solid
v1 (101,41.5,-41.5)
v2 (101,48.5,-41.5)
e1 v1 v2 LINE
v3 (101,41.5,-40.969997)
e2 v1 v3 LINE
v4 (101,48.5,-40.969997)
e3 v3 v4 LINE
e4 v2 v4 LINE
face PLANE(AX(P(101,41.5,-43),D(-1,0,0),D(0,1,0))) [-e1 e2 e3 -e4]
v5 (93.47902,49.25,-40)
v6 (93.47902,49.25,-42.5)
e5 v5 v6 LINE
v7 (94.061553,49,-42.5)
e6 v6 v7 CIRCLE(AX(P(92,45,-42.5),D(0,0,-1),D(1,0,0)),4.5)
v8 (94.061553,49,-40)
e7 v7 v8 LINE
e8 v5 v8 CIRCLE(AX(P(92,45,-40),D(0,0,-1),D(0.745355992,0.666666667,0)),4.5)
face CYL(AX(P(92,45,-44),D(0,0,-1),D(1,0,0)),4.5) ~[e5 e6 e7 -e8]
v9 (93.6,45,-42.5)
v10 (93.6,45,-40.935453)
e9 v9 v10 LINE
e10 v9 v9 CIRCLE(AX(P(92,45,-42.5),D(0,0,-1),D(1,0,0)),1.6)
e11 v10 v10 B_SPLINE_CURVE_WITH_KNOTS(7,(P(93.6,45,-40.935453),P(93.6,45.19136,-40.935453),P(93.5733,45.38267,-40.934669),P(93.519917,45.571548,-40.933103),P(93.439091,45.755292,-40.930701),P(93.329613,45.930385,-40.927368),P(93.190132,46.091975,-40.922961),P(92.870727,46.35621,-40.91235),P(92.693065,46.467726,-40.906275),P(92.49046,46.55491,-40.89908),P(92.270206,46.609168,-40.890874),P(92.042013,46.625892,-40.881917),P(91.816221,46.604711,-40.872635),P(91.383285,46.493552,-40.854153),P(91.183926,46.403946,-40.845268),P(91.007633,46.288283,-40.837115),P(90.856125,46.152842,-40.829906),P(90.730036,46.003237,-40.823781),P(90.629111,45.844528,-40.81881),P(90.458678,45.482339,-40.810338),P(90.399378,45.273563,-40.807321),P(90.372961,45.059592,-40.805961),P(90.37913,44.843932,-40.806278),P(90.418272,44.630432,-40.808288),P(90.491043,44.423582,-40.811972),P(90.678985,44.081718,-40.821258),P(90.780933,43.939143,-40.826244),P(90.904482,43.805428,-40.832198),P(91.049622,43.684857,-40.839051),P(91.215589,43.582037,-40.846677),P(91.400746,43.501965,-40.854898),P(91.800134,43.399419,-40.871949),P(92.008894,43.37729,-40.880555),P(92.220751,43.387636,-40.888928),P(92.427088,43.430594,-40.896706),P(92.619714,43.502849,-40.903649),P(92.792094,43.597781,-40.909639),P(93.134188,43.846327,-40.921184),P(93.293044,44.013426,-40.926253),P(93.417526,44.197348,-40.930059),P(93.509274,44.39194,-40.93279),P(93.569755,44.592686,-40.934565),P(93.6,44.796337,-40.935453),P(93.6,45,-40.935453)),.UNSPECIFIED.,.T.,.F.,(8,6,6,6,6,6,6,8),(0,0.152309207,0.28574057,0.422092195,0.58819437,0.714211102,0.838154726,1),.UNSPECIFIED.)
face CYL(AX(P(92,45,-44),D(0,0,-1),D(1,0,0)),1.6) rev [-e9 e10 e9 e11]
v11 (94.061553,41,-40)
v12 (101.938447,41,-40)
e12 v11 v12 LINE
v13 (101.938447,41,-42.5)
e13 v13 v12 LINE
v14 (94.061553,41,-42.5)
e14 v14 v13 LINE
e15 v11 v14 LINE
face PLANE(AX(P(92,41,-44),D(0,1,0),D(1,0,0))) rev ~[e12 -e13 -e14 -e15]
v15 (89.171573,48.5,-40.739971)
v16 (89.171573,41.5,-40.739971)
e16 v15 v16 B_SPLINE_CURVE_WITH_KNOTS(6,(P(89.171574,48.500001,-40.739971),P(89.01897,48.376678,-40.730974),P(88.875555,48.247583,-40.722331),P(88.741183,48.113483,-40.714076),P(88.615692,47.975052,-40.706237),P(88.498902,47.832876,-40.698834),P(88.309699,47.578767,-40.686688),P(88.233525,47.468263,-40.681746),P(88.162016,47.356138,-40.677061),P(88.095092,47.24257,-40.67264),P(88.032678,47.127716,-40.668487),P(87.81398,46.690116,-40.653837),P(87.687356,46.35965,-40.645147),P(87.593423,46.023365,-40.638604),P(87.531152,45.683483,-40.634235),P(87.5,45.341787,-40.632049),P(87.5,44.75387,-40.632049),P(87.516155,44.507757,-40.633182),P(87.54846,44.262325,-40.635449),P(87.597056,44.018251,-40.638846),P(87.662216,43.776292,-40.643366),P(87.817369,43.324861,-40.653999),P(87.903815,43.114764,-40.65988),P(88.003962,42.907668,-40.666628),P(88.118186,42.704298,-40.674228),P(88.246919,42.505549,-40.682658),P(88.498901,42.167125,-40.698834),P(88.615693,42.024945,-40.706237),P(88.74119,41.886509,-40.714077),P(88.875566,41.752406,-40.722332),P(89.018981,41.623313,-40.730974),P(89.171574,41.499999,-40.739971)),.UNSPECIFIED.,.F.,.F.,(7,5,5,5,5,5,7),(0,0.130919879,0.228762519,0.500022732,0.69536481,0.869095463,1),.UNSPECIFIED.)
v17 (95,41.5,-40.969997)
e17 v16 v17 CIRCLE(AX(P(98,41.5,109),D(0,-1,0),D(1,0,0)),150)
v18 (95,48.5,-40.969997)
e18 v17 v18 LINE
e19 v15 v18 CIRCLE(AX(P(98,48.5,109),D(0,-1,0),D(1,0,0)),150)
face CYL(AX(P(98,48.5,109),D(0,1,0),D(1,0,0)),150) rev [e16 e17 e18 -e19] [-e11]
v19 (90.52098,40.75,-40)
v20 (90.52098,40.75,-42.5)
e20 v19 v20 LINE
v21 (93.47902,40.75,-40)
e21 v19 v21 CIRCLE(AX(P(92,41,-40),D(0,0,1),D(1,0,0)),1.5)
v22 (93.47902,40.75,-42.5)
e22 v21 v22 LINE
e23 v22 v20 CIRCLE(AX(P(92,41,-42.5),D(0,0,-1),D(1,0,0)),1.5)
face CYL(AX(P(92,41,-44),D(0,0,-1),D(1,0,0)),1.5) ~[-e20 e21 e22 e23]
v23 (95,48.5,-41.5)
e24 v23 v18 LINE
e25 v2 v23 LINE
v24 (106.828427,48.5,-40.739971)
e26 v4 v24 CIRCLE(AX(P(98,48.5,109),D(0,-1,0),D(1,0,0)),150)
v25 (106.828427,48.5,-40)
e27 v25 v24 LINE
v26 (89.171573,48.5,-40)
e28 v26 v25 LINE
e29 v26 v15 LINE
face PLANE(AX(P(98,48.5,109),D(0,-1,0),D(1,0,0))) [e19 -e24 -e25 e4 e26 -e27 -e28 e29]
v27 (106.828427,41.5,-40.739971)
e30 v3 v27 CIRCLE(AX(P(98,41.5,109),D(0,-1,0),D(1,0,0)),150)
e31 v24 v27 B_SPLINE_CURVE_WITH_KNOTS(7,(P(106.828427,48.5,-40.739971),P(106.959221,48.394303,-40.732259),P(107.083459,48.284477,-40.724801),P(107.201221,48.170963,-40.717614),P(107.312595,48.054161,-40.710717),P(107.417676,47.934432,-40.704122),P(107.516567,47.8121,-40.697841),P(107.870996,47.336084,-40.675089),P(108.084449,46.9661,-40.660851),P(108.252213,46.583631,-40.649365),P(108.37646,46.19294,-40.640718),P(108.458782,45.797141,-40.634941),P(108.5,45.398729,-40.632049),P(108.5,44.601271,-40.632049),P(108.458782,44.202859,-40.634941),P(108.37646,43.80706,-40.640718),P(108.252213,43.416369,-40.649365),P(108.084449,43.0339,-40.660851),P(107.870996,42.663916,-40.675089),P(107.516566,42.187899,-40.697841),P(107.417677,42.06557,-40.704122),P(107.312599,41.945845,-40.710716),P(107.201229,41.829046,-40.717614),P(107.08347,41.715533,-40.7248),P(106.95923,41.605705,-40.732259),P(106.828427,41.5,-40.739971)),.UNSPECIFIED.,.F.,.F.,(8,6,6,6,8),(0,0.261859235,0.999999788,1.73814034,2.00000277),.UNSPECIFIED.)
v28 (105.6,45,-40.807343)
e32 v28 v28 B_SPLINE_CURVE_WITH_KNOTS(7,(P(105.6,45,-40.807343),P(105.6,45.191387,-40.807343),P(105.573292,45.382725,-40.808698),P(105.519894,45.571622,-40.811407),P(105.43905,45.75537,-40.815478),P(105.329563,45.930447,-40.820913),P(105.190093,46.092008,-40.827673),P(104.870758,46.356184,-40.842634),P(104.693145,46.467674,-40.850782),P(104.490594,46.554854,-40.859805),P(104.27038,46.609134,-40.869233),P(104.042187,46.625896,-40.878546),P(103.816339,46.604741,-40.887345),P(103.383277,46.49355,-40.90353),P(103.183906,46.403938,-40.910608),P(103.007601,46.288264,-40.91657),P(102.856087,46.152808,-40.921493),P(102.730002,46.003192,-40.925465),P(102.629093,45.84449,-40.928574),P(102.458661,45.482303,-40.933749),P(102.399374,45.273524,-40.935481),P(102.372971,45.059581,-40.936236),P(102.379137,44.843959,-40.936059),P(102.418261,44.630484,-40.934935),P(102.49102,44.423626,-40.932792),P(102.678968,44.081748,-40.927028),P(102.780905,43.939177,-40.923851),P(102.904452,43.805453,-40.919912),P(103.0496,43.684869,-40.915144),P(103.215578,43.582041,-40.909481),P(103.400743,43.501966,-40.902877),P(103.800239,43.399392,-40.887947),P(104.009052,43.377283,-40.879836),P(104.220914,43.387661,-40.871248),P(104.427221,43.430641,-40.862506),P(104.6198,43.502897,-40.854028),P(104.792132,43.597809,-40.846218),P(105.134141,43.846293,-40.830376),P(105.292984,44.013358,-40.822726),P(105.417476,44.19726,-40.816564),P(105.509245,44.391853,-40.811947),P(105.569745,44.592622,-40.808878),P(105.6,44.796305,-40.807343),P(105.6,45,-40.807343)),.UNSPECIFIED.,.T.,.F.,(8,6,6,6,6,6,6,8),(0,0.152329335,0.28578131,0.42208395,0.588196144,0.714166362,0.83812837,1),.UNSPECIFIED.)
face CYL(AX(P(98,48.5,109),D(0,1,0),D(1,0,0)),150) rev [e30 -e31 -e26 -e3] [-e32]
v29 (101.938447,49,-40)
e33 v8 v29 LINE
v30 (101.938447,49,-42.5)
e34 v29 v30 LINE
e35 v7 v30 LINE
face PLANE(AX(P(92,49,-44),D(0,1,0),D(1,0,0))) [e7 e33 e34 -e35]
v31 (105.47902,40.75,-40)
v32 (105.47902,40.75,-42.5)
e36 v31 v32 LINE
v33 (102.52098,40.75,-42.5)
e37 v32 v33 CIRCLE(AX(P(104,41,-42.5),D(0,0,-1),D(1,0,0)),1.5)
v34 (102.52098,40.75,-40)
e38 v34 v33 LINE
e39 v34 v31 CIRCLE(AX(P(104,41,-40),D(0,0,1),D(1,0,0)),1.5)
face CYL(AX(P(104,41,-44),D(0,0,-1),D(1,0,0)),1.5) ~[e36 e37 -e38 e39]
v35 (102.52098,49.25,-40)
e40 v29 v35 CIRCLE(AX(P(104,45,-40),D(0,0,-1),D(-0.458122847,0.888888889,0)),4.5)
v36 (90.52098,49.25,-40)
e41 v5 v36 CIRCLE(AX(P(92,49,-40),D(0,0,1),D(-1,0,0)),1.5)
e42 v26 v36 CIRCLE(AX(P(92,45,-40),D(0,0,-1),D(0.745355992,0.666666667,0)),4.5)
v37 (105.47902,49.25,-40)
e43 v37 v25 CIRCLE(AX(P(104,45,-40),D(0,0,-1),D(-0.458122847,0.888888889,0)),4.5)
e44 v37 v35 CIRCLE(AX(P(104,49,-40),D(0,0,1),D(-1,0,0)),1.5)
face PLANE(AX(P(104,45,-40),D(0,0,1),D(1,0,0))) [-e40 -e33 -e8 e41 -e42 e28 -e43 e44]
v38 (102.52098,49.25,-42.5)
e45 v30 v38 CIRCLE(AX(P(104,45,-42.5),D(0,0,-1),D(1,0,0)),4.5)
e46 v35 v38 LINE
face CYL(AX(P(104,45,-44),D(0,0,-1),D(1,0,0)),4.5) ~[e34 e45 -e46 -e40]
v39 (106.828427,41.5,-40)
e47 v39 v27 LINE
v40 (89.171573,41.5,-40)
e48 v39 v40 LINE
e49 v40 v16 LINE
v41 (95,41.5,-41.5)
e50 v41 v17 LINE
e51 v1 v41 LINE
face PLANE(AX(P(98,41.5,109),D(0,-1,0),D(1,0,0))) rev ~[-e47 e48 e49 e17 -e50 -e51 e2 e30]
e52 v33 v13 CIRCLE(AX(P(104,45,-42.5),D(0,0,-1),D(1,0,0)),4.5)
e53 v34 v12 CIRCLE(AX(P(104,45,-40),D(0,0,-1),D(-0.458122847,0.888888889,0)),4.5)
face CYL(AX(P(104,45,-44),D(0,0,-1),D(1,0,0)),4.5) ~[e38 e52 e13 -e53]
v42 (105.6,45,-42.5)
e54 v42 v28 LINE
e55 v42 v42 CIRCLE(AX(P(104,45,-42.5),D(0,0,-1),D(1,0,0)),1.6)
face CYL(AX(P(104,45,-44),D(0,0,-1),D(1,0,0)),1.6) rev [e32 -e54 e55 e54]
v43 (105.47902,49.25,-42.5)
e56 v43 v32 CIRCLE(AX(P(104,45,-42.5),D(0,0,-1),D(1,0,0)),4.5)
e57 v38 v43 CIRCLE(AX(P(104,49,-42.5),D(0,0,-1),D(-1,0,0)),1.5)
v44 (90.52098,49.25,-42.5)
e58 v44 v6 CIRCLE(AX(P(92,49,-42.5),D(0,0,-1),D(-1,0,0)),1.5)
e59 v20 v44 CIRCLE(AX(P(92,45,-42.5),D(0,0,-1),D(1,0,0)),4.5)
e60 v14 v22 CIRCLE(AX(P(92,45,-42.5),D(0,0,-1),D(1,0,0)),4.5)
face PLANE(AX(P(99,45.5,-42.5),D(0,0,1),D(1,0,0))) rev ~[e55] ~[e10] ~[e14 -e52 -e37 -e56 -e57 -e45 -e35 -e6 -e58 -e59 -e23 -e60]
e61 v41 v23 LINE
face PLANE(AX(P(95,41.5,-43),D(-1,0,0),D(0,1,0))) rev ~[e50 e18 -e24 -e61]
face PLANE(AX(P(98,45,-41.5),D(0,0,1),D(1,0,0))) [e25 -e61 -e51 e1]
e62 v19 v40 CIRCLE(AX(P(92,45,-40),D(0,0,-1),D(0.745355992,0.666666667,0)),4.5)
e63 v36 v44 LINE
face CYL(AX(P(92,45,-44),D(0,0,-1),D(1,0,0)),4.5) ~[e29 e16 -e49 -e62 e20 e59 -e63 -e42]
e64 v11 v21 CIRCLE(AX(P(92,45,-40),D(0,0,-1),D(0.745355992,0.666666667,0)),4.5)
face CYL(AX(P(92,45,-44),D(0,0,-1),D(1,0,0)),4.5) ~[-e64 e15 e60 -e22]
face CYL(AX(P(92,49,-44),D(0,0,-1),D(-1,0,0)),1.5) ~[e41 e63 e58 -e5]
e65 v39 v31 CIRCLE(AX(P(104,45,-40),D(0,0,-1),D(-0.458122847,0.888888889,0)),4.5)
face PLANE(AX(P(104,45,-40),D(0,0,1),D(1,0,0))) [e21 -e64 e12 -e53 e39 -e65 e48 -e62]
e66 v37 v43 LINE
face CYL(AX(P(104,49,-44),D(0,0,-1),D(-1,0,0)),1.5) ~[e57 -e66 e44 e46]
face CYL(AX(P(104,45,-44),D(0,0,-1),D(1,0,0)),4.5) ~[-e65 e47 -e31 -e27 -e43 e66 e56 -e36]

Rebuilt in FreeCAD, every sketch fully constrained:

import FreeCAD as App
import Part
import Sketcher

doc = App.newDocument("Part")
body = doc.addObject("PartDesign::Body", "Body")

# Sketch on XY plane
sketch1 = body.newObject("Sketcher::SketchObject", "Sketch")
sketch1.AttachmentSupport = (doc.getObject("XY_Plane"), [""])
sketch1.MapMode = "FlatFace"
sketch1.addGeometry(Part.LineSegment(App.Vector(2, 4, 0), App.Vector(2, -4, 0)), False)
sketch1.addGeometry(Part.LineSegment(App.Vector(2, -4, 0), App.Vector(10, -4, 0)), False)
sketch1.addGeometry(Part.LineSegment(App.Vector(10, -4, 0), App.Vector(10, 4, 0)), False)
sketch1.addGeometry(Part.LineSegment(App.Vector(10, 4, 0), App.Vector(2, 4, 0)), False)
sketch1.addConstraint(Sketcher.Constraint("Coincident", 0, 2, 1, 1))
sketch1.addConstraint(Sketcher.Constraint("Coincident", 1, 2, 2, 1))
sketch1.addConstraint(Sketcher.Constraint("Coincident", 2, 2, 3, 1))
sketch1.addConstraint(Sketcher.Constraint("Coincident", 3, 2, 0, 1))
sketch1.addConstraint(Sketcher.Constraint("Vertical", 0))
sketch1.addConstraint(Sketcher.Constraint("Horizontal", 1))
sketch1.addConstraint(Sketcher.Constraint("Vertical", 2))
sketch1.addConstraint(Sketcher.Constraint("Horizontal", 3))
sketch1.addConstraint(Sketcher.Constraint("Equal", 3, 0))
sketch1.addConstraint(Sketcher.Constraint("DistanceX", 1, 1, 1, 2, 8.0))
sketch1.addConstraint(Sketcher.Constraint("DistanceX", -1, 1, 0, 2, 2.0))
sketch1.addConstraint(Sketcher.Constraint("DistanceY", 0, 2, -1, 1, 4.0))
pad1 = body.newObject("PartDesign::Pad", "Pad")
pad1.Profile = sketch1
pad1.Length = 1
body2 = doc.addObject("PartDesign::Body", "Body001")

# Sketch on XY plane
sketch2 = body2.newObject("Sketcher::SketchObject", "Sketch001")
sketch2.AttachmentSupport = (doc.getObject("XY_Plane001"), [""])
sketch2.MapMode = "FlatFace"
sketch2.addGeometry(Part.LineSegment(App.Vector(-6, 7, 0), App.Vector(-6, -6, 0)), False)
sketch2.addGeometry(Part.LineSegment(App.Vector(-6, -6, 0), App.Vector(20, -6, 0)), False)
sketch2.addGeometry(Part.LineSegment(App.Vector(20, -6, 0), App.Vector(20, 7, 0)), False)
sketch2.addGeometry(Part.LineSegment(App.Vector(20, 7, 0), App.Vector(-6, 7, 0)), False)
sketch2.addConstraint(Sketcher.Constraint("Coincident", 0, 2, 1, 1))
sketch2.addConstraint(Sketcher.Constraint("Coincident", 1, 2, 2, 1))
sketch2.addConstraint(Sketcher.Constraint("Coincident", 2, 2, 3, 1))
sketch2.addConstraint(Sketcher.Constraint("Coincident", 3, 2, 0, 1))
sketch2.addConstraint(Sketcher.Constraint("Vertical", 0))
sketch2.addConstraint(Sketcher.Constraint("Horizontal", 1))
sketch2.addConstraint(Sketcher.Constraint("Vertical", 2))
sketch2.addConstraint(Sketcher.Constraint("Horizontal", 3))
sketch2.addConstraint(Sketcher.Constraint("DistanceX", 1, 1, 1, 2, 26.0))
sketch2.addConstraint(Sketcher.Constraint("DistanceY", 0, 2, 0, 1, 13.0))
sketch2.addConstraint(Sketcher.Constraint("DistanceX", 0, 2, -1, 1, 6.0))
sketch2.addConstraint(Sketcher.Constraint("DistanceY", 0, 2, -1, 1, 6.0))
pad2 = body2.newObject("PartDesign::Pad", "Pad001")
pad2.Profile = sketch2
pad2.Length = 1.5
body3 = doc.addObject("PartDesign::Body", "Body002")

# Sketch on XY plane
sketch3 = body3.newObject("Sketcher::SketchObject", "Sketch002")
sketch3.AttachmentSupport = (doc.getObject("XY_Plane002"), [""])
sketch3.MapMode = "FlatFace"
sketch3.AttachmentOffset = App.Placement(App.Vector(0, 0, 1), App.Rotation())
sketch3.addGeometry(Part.LineSegment(App.Vector(3, 3.5, 0), App.Vector(3, -3.5, 0)), False)
sketch3.addGeometry(Part.LineSegment(App.Vector(3, -3.5, 0), App.Vector(9, -3.5, 0)), False)
sketch3.addGeometry(Part.LineSegment(App.Vector(9, -3.5, 0), App.Vector(9, 3.5, 0)), False)
sketch3.addGeometry(Part.LineSegment(App.Vector(9, 3.5, 0), App.Vector(3, 3.5, 0)), False)
sketch3.addConstraint(Sketcher.Constraint("Coincident", 0, 2, 1, 1))
sketch3.addConstraint(Sketcher.Constraint("Coincident", 1, 2, 2, 1))
sketch3.addConstraint(Sketcher.Constraint("Coincident", 2, 2, 3, 1))
sketch3.addConstraint(Sketcher.Constraint("Coincident", 3, 2, 0, 1))
sketch3.addConstraint(Sketcher.Constraint("Vertical", 0))
sketch3.addConstraint(Sketcher.Constraint("Horizontal", 1))
sketch3.addConstraint(Sketcher.Constraint("Vertical", 2))
sketch3.addConstraint(Sketcher.Constraint("Horizontal", 3))
sketch3.addConstraint(Sketcher.Constraint("DistanceX", 1, 1, 1, 2, 6.0))
sketch3.addConstraint(Sketcher.Constraint("DistanceY", 0, 2, 0, 1, 7.0))
sketch3.addConstraint(Sketcher.Constraint("DistanceX", -1, 1, 0, 2, 3.0))
sketch3.addConstraint(Sketcher.Constraint("DistanceY", 0, 2, -1, 1, 3.5))
pad3 = body3.newObject("PartDesign::Pad", "Pad002")
pad3.Profile = sketch3
pad3.Length = 3
body4 = doc.addObject("PartDesign::Body", "Body003")

# Sketch on XY plane
sketch4 = body4.newObject("Sketcher::SketchObject", "Sketch003")
sketch4.AttachmentSupport = (doc.getObject("XY_Plane003"), [""])
sketch4.MapMode = "FlatFace"
sketch4.addGeometry(Part.Circle(App.Vector(0, 0, 0), App.Vector(0, 0, 1), 150), False)
sketch4.addConstraint(Sketcher.Constraint("Coincident", 0, 3, -1, 1))
sketch4.addConstraint(Sketcher.Constraint("Diameter", 0, 300.0))
pad4 = body4.newObject("PartDesign::Pad", "Pad003")
pad4.Profile = sketch4
pad4.Length = 7
body5 = doc.addObject("PartDesign::Body", "Body004")
doc.recompute()

body4.Placement = App.Placement(App.Vector(0, 0, 0), App.Rotation(App.Vector(1, 0, 0), 90))
boolean = body5.newObject("PartDesign::Boolean", "Boolean")
boolean.Type = "Fuse"
boolean.addObjects([body4])
body6 = doc.addObject("PartDesign::Body", "Body005")
doc.recompute()

body5.Placement = App.Placement(App.Vector(6, 3.5, 153), App.Rotation(App.Vector(0, 0, 1), 0))
boolean2 = body6.newObject("PartDesign::Boolean", "Boolean001")
boolean2.Type = "Fuse"
boolean2.addObjects([body5])
body7 = doc.addObject("PartDesign::Body", "Body006")

# Sketch on XY plane
sketch5 = body7.newObject("Sketcher::SketchObject", "Sketch004")
sketch5.AttachmentSupport = (doc.getObject("XY_Plane006"), [""])
sketch5.MapMode = "FlatFace"
sketch5.addGeometry(Part.Circle(App.Vector(0, 0, 0), App.Vector(0, 0, 1), 1.6), False)
sketch5.addConstraint(Sketcher.Constraint("Coincident", 0, 3, -1, 1))
sketch5.addConstraint(Sketcher.Constraint("Diameter", 0, 3.2))
pad5 = body7.newObject("PartDesign::Pad", "Pad004")
pad5.Profile = sketch5
pad5.Length = 10
body8 = doc.addObject("PartDesign::Body", "Body007")
body8.AllowCompound = True

# Sketch on XY plane
sketch6 = body8.newObject("Sketcher::SketchObject", "Sketch005")
sketch6.AttachmentSupport = (doc.getObject("XY_Plane007"), [""])
sketch6.MapMode = "FlatFace"
sketch6.addGeometry(Part.Circle(App.Vector(12, 0, 0), App.Vector(0, 0, 1), 1.6), False)
sketch6.addConstraint(Sketcher.Constraint("PointOnObject", 0, 3, -1))
sketch6.addConstraint(Sketcher.Constraint("Diameter", 0, 3.2))
sketch6.addConstraint(Sketcher.Constraint("DistanceX", -1, 1, 0, 3, 12.0))
pad6 = body8.newObject("PartDesign::Pad", "Pad005")
pad6.Profile = sketch6
pad6.Length = 10
doc.recompute()

boolean3 = body8.newObject("PartDesign::Boolean", "Boolean002")
boolean3.Type = "Fuse"
boolean3.addObjects([body7])
body9 = doc.addObject("PartDesign::Body", "Body008")

# Sketch on XY plane
sketch7 = body9.newObject("Sketcher::SketchObject", "Sketch006")
sketch7.AttachmentSupport = (doc.getObject("XY_Plane008"), [""])
sketch7.MapMode = "FlatFace"
sketch7.addGeometry(Part.LineSegment(App.Vector(-5, 10, 0), App.Vector(-5, 0, 0)), False)
sketch7.addGeometry(Part.LineSegment(App.Vector(-5, 0, 0), App.Vector(5, 0, 0)), False)
sketch7.addGeometry(Part.LineSegment(App.Vector(5, 0, 0), App.Vector(5, 10, 0)), False)
sketch7.addGeometry(Part.LineSegment(App.Vector(5, 10, 0), App.Vector(-5, 10, 0)), False)
sketch7.addConstraint(Sketcher.Constraint("Coincident", 0, 2, 1, 1))
sketch7.addConstraint(Sketcher.Constraint("Coincident", 1, 2, 2, 1))
sketch7.addConstraint(Sketcher.Constraint("Coincident", 2, 2, 3, 1))
sketch7.addConstraint(Sketcher.Constraint("Coincident", 3, 2, 0, 1))
sketch7.addConstraint(Sketcher.Constraint("Vertical", 0))
sketch7.addConstraint(Sketcher.Constraint("Horizontal", 1))
sketch7.addConstraint(Sketcher.Constraint("Vertical", 2))
sketch7.addConstraint(Sketcher.Constraint("Horizontal", 3))
sketch7.addConstraint(Sketcher.Constraint("Symmetric", 0, 2, 1, 2, -1, 1))
sketch7.addConstraint(Sketcher.Constraint("Equal", 3, 0))
sketch7.addConstraint(Sketcher.Constraint("DistanceX", 1, 1, 1, 2, 10.0))
pad7 = body9.newObject("PartDesign::Pad", "Pad006")
pad7.Profile = sketch7
pad7.Length = 10
body10 = doc.addObject("PartDesign::Body", "Body009")

# Sketch on XY plane
sketch8 = body10.newObject("Sketcher::SketchObject", "Sketch007")
sketch8.AttachmentSupport = (doc.getObject("XY_Plane009"), [""])
sketch8.MapMode = "FlatFace"
sketch8.addGeometry(Part.Circle(App.Vector(0, 0, 0), App.Vector(0, 0, 1), 1.5), False)
sketch8.addConstraint(Sketcher.Constraint("Coincident", 0, 3, -1, 1))
sketch8.addConstraint(Sketcher.Constraint("Diameter", 0, 3.0))
pad8 = body10.newObject("PartDesign::Pad", "Pad007")
pad8.Profile = sketch8
pad8.Length = 4
doc.recompute()

boolean4 = body10.newObject("PartDesign::Boolean", "Boolean003")
boolean4.Type = "Cut"
boolean4.addObjects([body9])
body11 = doc.addObject("PartDesign::Body", "Body010")
doc.recompute()

body10.Placement = App.Placement(App.Vector(12, 4, 0), App.Rotation(App.Vector(0, 0, 1), 180))
boolean5 = body11.newObject("PartDesign::Boolean", "Boolean004")
boolean5.Type = "Fuse"
boolean5.addObjects([body10])
body12 = doc.addObject("PartDesign::Body", "Body011")

# Sketch on XY plane
sketch9 = body12.newObject("Sketcher::SketchObject", "Sketch008")
sketch9.AttachmentSupport = (doc.getObject("XY_Plane011"), [""])
sketch9.MapMode = "FlatFace"
sketch9.addGeometry(Part.LineSegment(App.Vector(-5, 10, 0), App.Vector(-5, 0, 0)), False)
sketch9.addGeometry(Part.LineSegment(App.Vector(-5, 0, 0), App.Vector(5, 0, 0)), False)
sketch9.addGeometry(Part.LineSegment(App.Vector(5, 0, 0), App.Vector(5, 10, 0)), False)
sketch9.addGeometry(Part.LineSegment(App.Vector(5, 10, 0), App.Vector(-5, 10, 0)), False)
sketch9.addConstraint(Sketcher.Constraint("Coincident", 0, 2, 1, 1))
sketch9.addConstraint(Sketcher.Constraint("Coincident", 1, 2, 2, 1))
sketch9.addConstraint(Sketcher.Constraint("Coincident", 2, 2, 3, 1))
sketch9.addConstraint(Sketcher.Constraint("Coincident", 3, 2, 0, 1))
sketch9.addConstraint(Sketcher.Constraint("Vertical", 0))
sketch9.addConstraint(Sketcher.Constraint("Horizontal", 1))
sketch9.addConstraint(Sketcher.Constraint("Vertical", 2))
sketch9.addConstraint(Sketcher.Constraint("Horizontal", 3))
sketch9.addConstraint(Sketcher.Constraint("Symmetric", 0, 2, 1, 2, -1, 1))
sketch9.addConstraint(Sketcher.Constraint("Equal", 3, 0))
sketch9.addConstraint(Sketcher.Constraint("DistanceX", 1, 1, 1, 2, 10.0))
pad9 = body12.newObject("PartDesign::Pad", "Pad008")
pad9.Profile = sketch9
pad9.Length = 10
body13 = doc.addObject("PartDesign::Body", "Body012")

# Sketch on XY plane
sketch10 = body13.newObject("Sketcher::SketchObject", "Sketch009")
sketch10.AttachmentSupport = (doc.getObject("XY_Plane012"), [""])
sketch10.MapMode = "FlatFace"
sketch10.addGeometry(Part.Circle(App.Vector(0, 0, 0), App.Vector(0, 0, 1), 1.5), False)
sketch10.addConstraint(Sketcher.Constraint("Coincident", 0, 3, -1, 1))
sketch10.addConstraint(Sketcher.Constraint("Diameter", 0, 3.0))
pad10 = body13.newObject("PartDesign::Pad", "Pad009")
pad10.Profile = sketch10
pad10.Length = 4
doc.recompute()

boolean6 = body13.newObject("PartDesign::Boolean", "Boolean005")
boolean6.Type = "Cut"
boolean6.addObjects([body12])
body14 = doc.addObject("PartDesign::Body", "Body013")
doc.recompute()

body13.Placement = App.Placement(App.Vector(0, 4, 0), App.Rotation(App.Vector(0, 0, 1), 180))
boolean7 = body14.newObject("PartDesign::Boolean", "Boolean006")
boolean7.Type = "Fuse"
boolean7.addObjects([body13])
body15 = doc.addObject("PartDesign::Body", "Body014")

# Sketch on XY plane
sketch11 = body15.newObject("Sketcher::SketchObject", "Sketch010")
sketch11.AttachmentSupport = (doc.getObject("XY_Plane014"), [""])
sketch11.MapMode = "FlatFace"
sketch11.addGeometry(Part.LineSegment(App.Vector(-5, 10, 0), App.Vector(-5, 0, 0)), False)
sketch11.addGeometry(Part.LineSegment(App.Vector(-5, 0, 0), App.Vector(5, 0, 0)), False)
sketch11.addGeometry(Part.LineSegment(App.Vector(5, 0, 0), App.Vector(5, 10, 0)), False)
sketch11.addGeometry(Part.LineSegment(App.Vector(5, 10, 0), App.Vector(-5, 10, 0)), False)
sketch11.addConstraint(Sketcher.Constraint("Coincident", 0, 2, 1, 1))
sketch11.addConstraint(Sketcher.Constraint("Coincident", 1, 2, 2, 1))
sketch11.addConstraint(Sketcher.Constraint("Coincident", 2, 2, 3, 1))
sketch11.addConstraint(Sketcher.Constraint("Coincident", 3, 2, 0, 1))
sketch11.addConstraint(Sketcher.Constraint("Vertical", 0))
sketch11.addConstraint(Sketcher.Constraint("Horizontal", 1))
sketch11.addConstraint(Sketcher.Constraint("Vertical", 2))
sketch11.addConstraint(Sketcher.Constraint("Horizontal", 3))
sketch11.addConstraint(Sketcher.Constraint("Symmetric", 0, 2, 1, 2, -1, 1))
sketch11.addConstraint(Sketcher.Constraint("Equal", 3, 0))
sketch11.addConstraint(Sketcher.Constraint("DistanceX", 1, 1, 1, 2, 10.0))
pad11 = body15.newObject("PartDesign::Pad", "Pad010")
pad11.Profile = sketch11
pad11.Length = 10
body16 = doc.addObject("PartDesign::Body", "Body015")

# Sketch on XY plane
sketch12 = body16.newObject("Sketcher::SketchObject", "Sketch011")
sketch12.AttachmentSupport = (doc.getObject("XY_Plane015"), [""])
sketch12.MapMode = "FlatFace"
sketch12.addGeometry(Part.Circle(App.Vector(0, 0, 0), App.Vector(0, 0, 1), 1.5), False)
sketch12.addConstraint(Sketcher.Constraint("Coincident", 0, 3, -1, 1))
sketch12.addConstraint(Sketcher.Constraint("Diameter", 0, 3.0))
pad12 = body16.newObject("PartDesign::Pad", "Pad011")
pad12.Profile = sketch12
pad12.Length = 4
doc.recompute()

boolean8 = body16.newObject("PartDesign::Boolean", "Boolean007")
boolean8.Type = "Cut"
boolean8.addObjects([body15])
body17 = doc.addObject("PartDesign::Body", "Body016")
doc.recompute()

body16.Placement = App.Placement(App.Vector(12, -4, 0), App.Rotation(App.Vector(0, 0, 1), 0))
boolean9 = body17.newObject("PartDesign::Boolean", "Boolean008")
boolean9.Type = "Fuse"
boolean9.addObjects([body16])
body18 = doc.addObject("PartDesign::Body", "Body017")

# Sketch on XY plane
sketch13 = body18.newObject("Sketcher::SketchObject", "Sketch012")
sketch13.AttachmentSupport = (doc.getObject("XY_Plane017"), [""])
sketch13.MapMode = "FlatFace"
sketch13.addGeometry(Part.LineSegment(App.Vector(-5, 10, 0), App.Vector(-5, 0, 0)), False)
sketch13.addGeometry(Part.LineSegment(App.Vector(-5, 0, 0), App.Vector(5, 0, 0)), False)
sketch13.addGeometry(Part.LineSegment(App.Vector(5, 0, 0), App.Vector(5, 10, 0)), False)
sketch13.addGeometry(Part.LineSegment(App.Vector(5, 10, 0), App.Vector(-5, 10, 0)), False)
sketch13.addConstraint(Sketcher.Constraint("Coincident", 0, 2, 1, 1))
sketch13.addConstraint(Sketcher.Constraint("Coincident", 1, 2, 2, 1))
sketch13.addConstraint(Sketcher.Constraint("Coincident", 2, 2, 3, 1))
sketch13.addConstraint(Sketcher.Constraint("Coincident", 3, 2, 0, 1))
sketch13.addConstraint(Sketcher.Constraint("Vertical", 0))
sketch13.addConstraint(Sketcher.Constraint("Horizontal", 1))
sketch13.addConstraint(Sketcher.Constraint("Vertical", 2))
sketch13.addConstraint(Sketcher.Constraint("Horizontal", 3))
sketch13.addConstraint(Sketcher.Constraint("Symmetric", 0, 2, 1, 2, -1, 1))
sketch13.addConstraint(Sketcher.Constraint("Equal", 3, 0))
sketch13.addConstraint(Sketcher.Constraint("DistanceX", 1, 1, 1, 2, 10.0))
pad13 = body18.newObject("PartDesign::Pad", "Pad012")
pad13.Profile = sketch13
pad13.Length = 10
body19 = doc.addObject("PartDesign::Body", "Body018")

# Sketch on XY plane
sketch14 = body19.newObject("Sketcher::SketchObject", "Sketch013")
sketch14.AttachmentSupport = (doc.getObject("XY_Plane018"), [""])
sketch14.MapMode = "FlatFace"
sketch14.addGeometry(Part.Circle(App.Vector(0, 0, 0), App.Vector(0, 0, 1), 1.5), False)
sketch14.addConstraint(Sketcher.Constraint("Coincident", 0, 3, -1, 1))
sketch14.addConstraint(Sketcher.Constraint("Diameter", 0, 3.0))
pad14 = body19.newObject("PartDesign::Pad", "Pad013")
pad14.Profile = sketch14
pad14.Length = 4
doc.recompute()

boolean10 = body19.newObject("PartDesign::Boolean", "Boolean009")
boolean10.Type = "Cut"
boolean10.addObjects([body18])
body20 = doc.addObject("PartDesign::Body", "Body019")
doc.recompute()

body19.Placement = App.Placement(App.Vector(0, -4, 0), App.Rotation(App.Vector(0, 0, 1), 0))
boolean11 = body20.newObject("PartDesign::Boolean", "Boolean010")
boolean11.Type = "Fuse"
boolean11.addObjects([body19])
body21 = doc.addObject("PartDesign::Body", "Body020")

# Sketch on XY plane
sketch15 = body21.newObject("Sketcher::SketchObject", "Sketch014")
sketch15.AttachmentSupport = (doc.getObject("XY_Plane020"), [""])
sketch15.MapMode = "FlatFace"
sketch15.AttachmentOffset = App.Placement(App.Vector(0, 0, 3), App.Rotation())
sketch15.addGeometry(Part.LineSegment(App.Vector(0, 4, 0), App.Vector(0, 3.5, 0)), False)
sketch15.addGeometry(Part.LineSegment(App.Vector(0, 3.5, 0), App.Vector(12, 3.5, 0)), False)
sketch15.addGeometry(Part.LineSegment(App.Vector(12, 3.5, 0), App.Vector(12, 4, 0)), False)
sketch15.addGeometry(Part.LineSegment(App.Vector(12, 4, 0), App.Vector(0, 4, 0)), False)
sketch15.addConstraint(Sketcher.Constraint("Coincident", 0, 2, 1, 1))
sketch15.addConstraint(Sketcher.Constraint("Coincident", 1, 2, 2, 1))
sketch15.addConstraint(Sketcher.Constraint("Coincident", 2, 2, 3, 1))
sketch15.addConstraint(Sketcher.Constraint("Coincident", 3, 2, 0, 1))
sketch15.addConstraint(Sketcher.Constraint("Vertical", 0))
sketch15.addConstraint(Sketcher.Constraint("Horizontal", 1))
sketch15.addConstraint(Sketcher.Constraint("Vertical", 2))
sketch15.addConstraint(Sketcher.Constraint("Horizontal", 3))
sketch15.addConstraint(Sketcher.Constraint("PointOnObject", 0, 2, -2))
sketch15.addConstraint(Sketcher.Constraint("DistanceX", 1, 1, 1, 2, 12.0))
sketch15.addConstraint(Sketcher.Constraint("DistanceY", 0, 2, 0, 1, 0.5))
sketch15.addConstraint(Sketcher.Constraint("DistanceY", -1, 1, 2, 2, 4.0))
pad15 = body21.newObject("PartDesign::Pad", "Pad014")
pad15.Profile = sketch15
pad15.Length = 1
body22 = doc.addObject("PartDesign::Body", "Body021")

# Sketch on XY plane
sketch16 = body22.newObject("Sketcher::SketchObject", "Sketch015")
sketch16.AttachmentSupport = (doc.getObject("XY_Plane021"), [""])
sketch16.MapMode = "FlatFace"
sketch16.AttachmentOffset = App.Placement(App.Vector(0, 0, 3), App.Rotation())
sketch16.addGeometry(Part.LineSegment(App.Vector(0, -3.5, 0), App.Vector(0, -4, 0)), False)
sketch16.addGeometry(Part.LineSegment(App.Vector(0, -4, 0), App.Vector(12, -4, 0)), False)
sketch16.addGeometry(Part.LineSegment(App.Vector(12, -4, 0), App.Vector(12, -3.5, 0)), False)
sketch16.addGeometry(Part.LineSegment(App.Vector(12, -3.5, 0), App.Vector(0, -3.5, 0)), False)
sketch16.addConstraint(Sketcher.Constraint("Coincident", 0, 2, 1, 1))
sketch16.addConstraint(Sketcher.Constraint("Coincident", 1, 2, 2, 1))
sketch16.addConstraint(Sketcher.Constraint("Coincident", 2, 2, 3, 1))
sketch16.addConstraint(Sketcher.Constraint("Coincident", 3, 2, 0, 1))
sketch16.addConstraint(Sketcher.Constraint("Vertical", 0))
sketch16.addConstraint(Sketcher.Constraint("Horizontal", 1))
sketch16.addConstraint(Sketcher.Constraint("Vertical", 2))
sketch16.addConstraint(Sketcher.Constraint("Horizontal", 3))
sketch16.addConstraint(Sketcher.Constraint("PointOnObject", 0, 2, -2))
sketch16.addConstraint(Sketcher.Constraint("DistanceX", 1, 1, 1, 2, 12.0))
sketch16.addConstraint(Sketcher.Constraint("DistanceY", 0, 2, 0, 1, 0.5))
sketch16.addConstraint(Sketcher.Constraint("DistanceY", 0, 2, -1, 1, 4.0))
pad16 = body22.newObject("PartDesign::Pad", "Pad015")
pad16.Profile = sketch16
pad16.Length = 1
body23 = doc.addObject("PartDesign::Body", "Body022")

# Sketch on XY plane
sketch17 = body23.newObject("Sketcher::SketchObject", "Sketch016")
sketch17.AttachmentSupport = (doc.getObject("XY_Plane022"), [""])
sketch17.MapMode = "FlatFace"
sketch17.addGeometry(Part.LineSegment(App.Vector(0, 4, 0), App.Vector(0, 3, 0)), False)
sketch17.addGeometry(Part.LineSegment(App.Vector(0, 3, 0), App.Vector(12, 3, 0)), False)
sketch17.addGeometry(Part.LineSegment(App.Vector(12, 3, 0), App.Vector(12, 4, 0)), False)
sketch17.addGeometry(Part.LineSegment(App.Vector(12, 4, 0), App.Vector(0, 4, 0)), False)
sketch17.addConstraint(Sketcher.Constraint("Coincident", 0, 2, 1, 1))
sketch17.addConstraint(Sketcher.Constraint("Coincident", 1, 2, 2, 1))
sketch17.addConstraint(Sketcher.Constraint("Coincident", 2, 2, 3, 1))
sketch17.addConstraint(Sketcher.Constraint("Coincident", 3, 2, 0, 1))
sketch17.addConstraint(Sketcher.Constraint("Vertical", 0))
sketch17.addConstraint(Sketcher.Constraint("Horizontal", 1))
sketch17.addConstraint(Sketcher.Constraint("Vertical", 2))
sketch17.addConstraint(Sketcher.Constraint("Horizontal", 3))
sketch17.addConstraint(Sketcher.Constraint("PointOnObject", 0, 2, -2))
sketch17.addConstraint(Sketcher.Constraint("DistanceX", 1, 1, 1, 2, 12.0))
sketch17.addConstraint(Sketcher.Constraint("DistanceY", 0, 2, 0, 1, 1.0))
sketch17.addConstraint(Sketcher.Constraint("DistanceY", -1, 1, 0, 2, 3.0))
pad17 = body23.newObject("PartDesign::Pad", "Pad016")
pad17.Profile = sketch17
pad17.Length = 4
body24 = doc.addObject("PartDesign::Body", "Body023")

# Sketch on XY plane
sketch18 = body24.newObject("Sketcher::SketchObject", "Sketch017")
sketch18.AttachmentSupport = (doc.getObject("XY_Plane023"), [""])
sketch18.MapMode = "FlatFace"
sketch18.addGeometry(Part.LineSegment(App.Vector(0, -3, 0), App.Vector(0, -4, 0)), False)
sketch18.addGeometry(Part.LineSegment(App.Vector(0, -4, 0), App.Vector(12, -4, 0)), False)
sketch18.addGeometry(Part.LineSegment(App.Vector(12, -4, 0), App.Vector(12, -3, 0)), False)
sketch18.addGeometry(Part.LineSegment(App.Vector(12, -3, 0), App.Vector(0, -3, 0)), False)
sketch18.addConstraint(Sketcher.Constraint("Coincident", 0, 2, 1, 1))
sketch18.addConstraint(Sketcher.Constraint("Coincident", 1, 2, 2, 1))
sketch18.addConstraint(Sketcher.Constraint("Coincident", 2, 2, 3, 1))
sketch18.addConstraint(Sketcher.Constraint("Coincident", 3, 2, 0, 1))
sketch18.addConstraint(Sketcher.Constraint("Vertical", 0))
sketch18.addConstraint(Sketcher.Constraint("Horizontal", 1))
sketch18.addConstraint(Sketcher.Constraint("Vertical", 2))
sketch18.addConstraint(Sketcher.Constraint("Horizontal", 3))
sketch18.addConstraint(Sketcher.Constraint("PointOnObject", 0, 2, -2))
sketch18.addConstraint(Sketcher.Constraint("DistanceX", 1, 1, 1, 2, 12.0))
sketch18.addConstraint(Sketcher.Constraint("DistanceY", 0, 2, 0, 1, 1.0))
sketch18.addConstraint(Sketcher.Constraint("DistanceY", 0, 2, -1, 1, 4.0))
pad18 = body24.newObject("PartDesign::Pad", "Pad017")
pad18.Profile = sketch18
pad18.Length = 4
body25 = doc.addObject("PartDesign::Body", "Body024")

# Sketch on XY plane
sketch19 = body25.newObject("Sketcher::SketchObject", "Sketch018")
sketch19.AttachmentSupport = (doc.getObject("XY_Plane024"), [""])
sketch19.MapMode = "FlatFace"
sketch19.addGeometry(Part.Circle(App.Vector(12, 0, 0), App.Vector(0, 0, 1), 4.5), False)
sketch19.addConstraint(Sketcher.Constraint("PointOnObject", 0, 3, -1))
sketch19.addConstraint(Sketcher.Constraint("Diameter", 0, 9.0))
sketch19.addConstraint(Sketcher.Constraint("DistanceX", -1, 1, 0, 3, 12.0))
pad19 = body25.newObject("PartDesign::Pad", "Pad018")
pad19.Profile = sketch19
pad19.Length = 4
body26 = doc.addObject("PartDesign::Body", "Body025")

# Sketch on XY plane
sketch20 = body26.newObject("Sketcher::SketchObject", "Sketch019")
sketch20.AttachmentSupport = (doc.getObject("XY_Plane025"), [""])
sketch20.MapMode = "FlatFace"
sketch20.addGeometry(Part.Circle(App.Vector(0, 0, 0), App.Vector(0, 0, 1), 4.5), False)
sketch20.addConstraint(Sketcher.Constraint("Coincident", 0, 3, -1, 1))
sketch20.addConstraint(Sketcher.Constraint("Diameter", 0, 9.0))
pad20 = body26.newObject("PartDesign::Pad", "Pad019")
pad20.Profile = sketch20
pad20.Length = 4
body27 = doc.addObject("PartDesign::Body", "Body026")

# Sketch on XY plane
sketch21 = body27.newObject("Sketcher::SketchObject", "Sketch020")
sketch21.AttachmentSupport = (doc.getObject("XY_Plane026"), [""])
sketch21.MapMode = "FlatFace"
sketch21.addGeometry(Part.LineSegment(App.Vector(0, 4, 0), App.Vector(0, -4, 0)), False)
sketch21.addGeometry(Part.LineSegment(App.Vector(0, -4, 0), App.Vector(12, -4, 0)), False)
sketch21.addGeometry(Part.LineSegment(App.Vector(12, -4, 0), App.Vector(12, 4, 0)), False)
sketch21.addGeometry(Part.LineSegment(App.Vector(12, 4, 0), App.Vector(0, 4, 0)), False)
sketch21.addConstraint(Sketcher.Constraint("Coincident", 0, 2, 1, 1))
sketch21.addConstraint(Sketcher.Constraint("Coincident", 1, 2, 2, 1))
sketch21.addConstraint(Sketcher.Constraint("Coincident", 2, 2, 3, 1))
sketch21.addConstraint(Sketcher.Constraint("Coincident", 3, 2, 0, 1))
sketch21.addConstraint(Sketcher.Constraint("Vertical", 0))
sketch21.addConstraint(Sketcher.Constraint("Horizontal", 1))
sketch21.addConstraint(Sketcher.Constraint("Vertical", 2))
sketch21.addConstraint(Sketcher.Constraint("Horizontal", 3))
sketch21.addConstraint(Sketcher.Constraint("Symmetric", 0, 2, 3, 2, -1, 1))
sketch21.addConstraint(Sketcher.Constraint("DistanceX", 1, 1, 1, 2, 12.0))
sketch21.addConstraint(Sketcher.Constraint("DistanceY", 0, 2, 0, 1, 8.0))
pad21 = body27.newObject("PartDesign::Pad", "Pad020")
pad21.Profile = sketch21
pad21.Length = 1
doc.recompute()

boolean12 = body27.newObject("PartDesign::Boolean", "Boolean011")
boolean12.Type = "Fuse"
boolean12.addObjects([body25])
doc.recompute()

boolean13 = body27.newObject("PartDesign::Boolean", "Boolean012")
boolean13.Type = "Fuse"
boolean13.addObjects([body26])
doc.recompute()

boolean14 = body27.newObject("PartDesign::Boolean", "Boolean013")
boolean14.Type = "Fuse"
boolean14.addObjects([body23])
doc.recompute()

boolean15 = body27.newObject("PartDesign::Boolean", "Boolean014")
boolean15.Type = "Fuse"
boolean15.addObjects([body24])
doc.recompute()

boolean16 = body27.newObject("PartDesign::Boolean", "Boolean015")
boolean16.Type = "Fuse"
boolean16.addObjects([body21])
doc.recompute()

boolean17 = body27.newObject("PartDesign::Boolean", "Boolean016")
boolean17.Type = "Fuse"
boolean17.addObjects([body22])
doc.recompute()

boolean18 = body27.newObject("PartDesign::Boolean", "Boolean017")
boolean18.Type = "Fuse"
boolean18.addObjects([body11])
doc.recompute()

boolean19 = body27.newObject("PartDesign::Boolean", "Boolean018")
boolean19.Type = "Fuse"
boolean19.addObjects([body14])
doc.recompute()

boolean20 = body27.newObject("PartDesign::Boolean", "Boolean019")
boolean20.Type = "Fuse"
boolean20.addObjects([body17])
doc.recompute()

boolean21 = body27.newObject("PartDesign::Boolean", "Boolean020")
boolean21.Type = "Fuse"
boolean21.addObjects([body20])
doc.recompute()

boolean22 = body27.newObject("PartDesign::Boolean", "Boolean021")
boolean22.Type = "Cut"
boolean22.addObjects([body8])
doc.recompute()

boolean23 = body27.newObject("PartDesign::Boolean", "Boolean022")
boolean23.Type = "Cut"
boolean23.addObjects([body6])
doc.recompute()

boolean24 = body27.newObject("PartDesign::Boolean", "Boolean023")
boolean24.Type = "Cut"
boolean24.addObjects([body3])
doc.recompute()

boolean25 = body27.newObject("PartDesign::Boolean", "Boolean024")
boolean25.Type = "Cut"
boolean25.addObjects([body2])
body28 = doc.addObject("PartDesign::Body", "Body027")
doc.recompute()

body27.Placement = App.Placement(App.Vector(0, 0, -1.5), App.Rotation(App.Vector(0, 0, 1), 0))
boolean26 = body28.newObject("PartDesign::Boolean", "Boolean025")
boolean26.Type = "Fuse"
boolean26.addObjects([body27])
doc.recompute()

boolean27 = body28.newObject("PartDesign::Boolean", "Boolean026")
boolean27.Type = "Fuse"
boolean27.addObjects([body])
body29 = doc.addObject("PartDesign::Body", "Body028")
doc.recompute()

body28.Placement = App.Placement(App.Vector(92, 45, -42.5), App.Rotation(App.Vector(0, 0, 1), 0))
boolean28 = body29.newObject("PartDesign::Boolean", "Boolean027")
boolean28.Type = "Fuse"
boolean28.addObjects([body28])

doc.recompute()
